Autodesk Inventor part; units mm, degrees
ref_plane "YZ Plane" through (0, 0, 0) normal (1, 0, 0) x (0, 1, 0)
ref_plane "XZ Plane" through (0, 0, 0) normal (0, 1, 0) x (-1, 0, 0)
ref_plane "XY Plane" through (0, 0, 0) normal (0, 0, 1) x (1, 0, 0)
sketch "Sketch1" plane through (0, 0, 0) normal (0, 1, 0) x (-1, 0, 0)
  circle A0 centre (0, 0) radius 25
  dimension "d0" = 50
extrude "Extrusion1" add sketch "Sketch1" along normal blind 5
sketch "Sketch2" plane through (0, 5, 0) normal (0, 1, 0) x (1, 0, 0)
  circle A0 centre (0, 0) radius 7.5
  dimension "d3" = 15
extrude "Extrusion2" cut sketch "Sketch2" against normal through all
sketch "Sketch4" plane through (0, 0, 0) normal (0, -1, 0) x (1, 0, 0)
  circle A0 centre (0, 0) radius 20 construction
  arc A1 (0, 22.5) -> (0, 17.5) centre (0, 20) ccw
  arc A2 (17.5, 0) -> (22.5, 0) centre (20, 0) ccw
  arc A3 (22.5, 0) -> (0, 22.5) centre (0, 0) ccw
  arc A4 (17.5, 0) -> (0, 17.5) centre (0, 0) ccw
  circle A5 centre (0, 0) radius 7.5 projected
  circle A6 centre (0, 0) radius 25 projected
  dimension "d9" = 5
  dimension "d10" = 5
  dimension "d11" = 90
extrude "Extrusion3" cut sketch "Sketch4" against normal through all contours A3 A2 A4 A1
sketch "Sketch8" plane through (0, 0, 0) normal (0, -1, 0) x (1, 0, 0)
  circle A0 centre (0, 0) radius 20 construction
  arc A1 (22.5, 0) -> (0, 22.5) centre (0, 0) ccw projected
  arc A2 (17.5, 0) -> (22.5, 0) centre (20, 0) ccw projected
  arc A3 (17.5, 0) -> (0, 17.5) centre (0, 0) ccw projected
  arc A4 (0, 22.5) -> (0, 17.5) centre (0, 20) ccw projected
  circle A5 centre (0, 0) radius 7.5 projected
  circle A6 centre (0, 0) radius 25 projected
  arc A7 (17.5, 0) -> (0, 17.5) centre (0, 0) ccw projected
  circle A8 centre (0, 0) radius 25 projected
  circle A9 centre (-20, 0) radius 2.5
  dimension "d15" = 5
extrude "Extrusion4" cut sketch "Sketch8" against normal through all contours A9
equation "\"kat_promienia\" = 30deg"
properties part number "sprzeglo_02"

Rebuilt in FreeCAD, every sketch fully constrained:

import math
import FreeCAD as App
import Part
import Sketcher

V = App.Vector

doc = App.newDocument("Part")
body = doc.addObject("PartDesign::Body", "Body")

sketch1 = doc.addObject("Sketcher::SketchObject", "Sketch")
body.addObject(sketch1)
sketch1.AttachmentSupport = (doc.XZ_Plane, [""])
sketch1.MapMode = "FlatFace"
sketch1.addGeometry(Part.Circle(V(0, 0, 0), V(0, 0, 1), 25), False)
sketch1.addConstraint(Sketcher.Constraint("Coincident", 0, 3, -1, 1))
sketch1.addConstraint(Sketcher.Constraint("Diameter", 0, 50.0))
pad1 = doc.addObject("PartDesign::Pad", "Pad")
body.addObject(pad1)
pad1.Profile = sketch1
pad1.Length = 5
pad1.Reversed = True

sketch2 = doc.addObject("Sketcher::SketchObject", "Sketch001")
body.addObject(sketch2)
sketch2.AttachmentSupport = (doc.XZ_Plane, [""])
sketch2.MapMode = "FlatFace"
sketch2.AttachmentOffset = App.Placement(V(0, 0, -5), App.Rotation())
sketch2.addGeometry(Part.Circle(V(0, 0, 0), V(0, 0, 1), 7.5), False)
sketch2.addConstraint(Sketcher.Constraint("Coincident", 0, 3, -1, 1))
sketch2.addConstraint(Sketcher.Constraint("Diameter", 0, 15.0))
pocket1 = doc.addObject("PartDesign::Pocket", "Pocket")
body.addObject(pocket1)
pocket1.Profile = sketch2
pocket1.Type = "ThroughAll"
pocket1.Reversed = True

sketch3 = doc.addObject("Sketcher::SketchObject", "Sketch002")
body.addObject(sketch3)
sketch3.AttachmentSupport = (doc.XZ_Plane, [""])
sketch3.MapMode = "FlatFace"
sketch3.addGeometry(Part.ArcOfCircle(Part.Circle(V(0, 0, 0), V(0, 0, 1), 22.5), math.radians(0), math.radians(90)), False)
sketch3.addGeometry(Part.ArcOfCircle(Part.Circle(V(0, 20, 0), V(0, 0, 1), 2.5), math.radians(90), math.radians(270)), False)
sketch3.addGeometry(Part.ArcOfCircle(Part.Circle(V(0, 0, 0), V(0, 0, 1), 17.5), math.radians(0), math.radians(90)), False)
sketch3.addGeometry(Part.ArcOfCircle(Part.Circle(V(20, 0, 0), V(0, 0, 1), 2.5), math.radians(180), math.radians(360)), False)
sketch3.addConstraint(Sketcher.Constraint("Tangent", 0, 2, 1, 1))
sketch3.addConstraint(Sketcher.Constraint("Tangent", 1, 2, 2, 2))
sketch3.addConstraint(Sketcher.Constraint("Tangent", 2, 1, 3, 1))
sketch3.addConstraint(Sketcher.Constraint("Tangent", 3, 2, 0, 1))
sketch3.addConstraint(Sketcher.Constraint("Coincident", 0, 3, -1, 1))
sketch3.addConstraint(Sketcher.Constraint("Coincident", 2, 3, -1, 1))
sketch3.addConstraint(Sketcher.Constraint("PointOnObject", 1, 3, -2))
sketch3.addConstraint(Sketcher.Constraint("PointOnObject", 3, 3, -1))
sketch3.addConstraint(Sketcher.Constraint("Radius", 1, 2.5))
sketch3.addConstraint(Sketcher.Constraint("Radius", 0, 22.5))
pocket2 = doc.addObject("PartDesign::Pocket", "Pocket001")
body.addObject(pocket2)
pocket2.Profile = sketch3
pocket2.Type = "ThroughAll"

sketch4 = doc.addObject("Sketcher::SketchObject", "Sketch003")
body.addObject(sketch4)
sketch4.AttachmentSupport = (doc.XZ_Plane, [""])
sketch4.MapMode = "FlatFace"
sketch4.addGeometry(Part.Circle(V(-20, 0, 0), V(0, 0, 1), 2.5), False)
sketch4.addConstraint(Sketcher.Constraint("PointOnObject", 0, 3, -1))
sketch4.addConstraint(Sketcher.Constraint("Diameter", 0, 5.0))
sketch4.addConstraint(Sketcher.Constraint("DistanceX", 0, 3, -1, 1, 20.0))
pocket3 = doc.addObject("PartDesign::Pocket", "Pocket002")
body.addObject(pocket3)
pocket3.Profile = sketch4
pocket3.Type = "ThroughAll"

doc.recompute()
